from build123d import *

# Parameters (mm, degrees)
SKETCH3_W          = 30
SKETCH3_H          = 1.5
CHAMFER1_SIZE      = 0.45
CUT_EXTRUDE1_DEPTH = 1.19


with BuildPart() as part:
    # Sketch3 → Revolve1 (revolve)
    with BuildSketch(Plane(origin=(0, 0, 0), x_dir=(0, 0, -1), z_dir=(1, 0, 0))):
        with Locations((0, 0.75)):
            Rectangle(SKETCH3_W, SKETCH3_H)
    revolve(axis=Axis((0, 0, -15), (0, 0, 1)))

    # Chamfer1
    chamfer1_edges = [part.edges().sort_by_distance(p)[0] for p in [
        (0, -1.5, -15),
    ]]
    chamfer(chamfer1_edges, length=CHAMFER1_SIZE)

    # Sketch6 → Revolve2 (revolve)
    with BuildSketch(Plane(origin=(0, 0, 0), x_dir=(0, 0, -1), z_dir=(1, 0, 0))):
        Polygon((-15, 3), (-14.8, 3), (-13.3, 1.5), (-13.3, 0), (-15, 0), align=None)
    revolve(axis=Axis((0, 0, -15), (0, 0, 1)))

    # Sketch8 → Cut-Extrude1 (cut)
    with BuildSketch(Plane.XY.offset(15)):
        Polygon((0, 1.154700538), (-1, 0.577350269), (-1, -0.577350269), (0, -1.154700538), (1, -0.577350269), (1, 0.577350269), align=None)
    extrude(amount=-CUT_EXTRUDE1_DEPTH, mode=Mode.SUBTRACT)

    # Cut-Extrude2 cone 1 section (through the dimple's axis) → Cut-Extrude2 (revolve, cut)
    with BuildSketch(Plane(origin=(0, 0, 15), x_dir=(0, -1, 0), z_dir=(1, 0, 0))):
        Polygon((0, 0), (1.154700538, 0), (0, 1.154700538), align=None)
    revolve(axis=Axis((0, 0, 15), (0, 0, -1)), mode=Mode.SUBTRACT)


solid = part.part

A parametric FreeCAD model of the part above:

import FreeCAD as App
import Part
import Sketcher
Q = App.Units.Quantity


def edges_at(feature, points):
    """Names of the edges that pass closest to the given points."""
    edges = feature.Shape.Edges
    near = lambda p: min(range(len(edges)), key=lambda i: edges[i].distToShape(Part.Vertex(*p))[0])
    return sorted({f"Edge{near(p) + 1}" for p in points})

doc = App.newDocument("Part")
body = doc.addObject("PartDesign::Body", "Body")

# Sketch on YZ plane
sketch1 = body.newObject("Sketcher::SketchObject", "Sketch")
sketch1.AttachmentSupport = (doc.getObject("YZ_Plane"), [""])
sketch1.MapMode = "FlatFace"
sketch1.addGeometry([
    Part.LineSegment(App.Vector(1.5, 15, 0), App.Vector(0, 15, 0)),
    Part.LineSegment(App.Vector(0, 15, 0), App.Vector(0, -15, 0)),
    Part.LineSegment(App.Vector(0, -15, 0), App.Vector(1.5, -15, 0)),
    Part.LineSegment(App.Vector(1.5, -15, 0), App.Vector(1.5, 15, 0)),
], False)
sketch1.addConstraint([
    Sketcher.Constraint("Coincident", 0, 2, 1, 1),
    Sketcher.Constraint("Coincident", 1, 2, 2, 1),
    Sketcher.Constraint("Coincident", 2, 2, 3, 1),
    Sketcher.Constraint("Coincident", 3, 2, 0, 1),
    Sketcher.Constraint("Horizontal", 0),
    Sketcher.Constraint("Vertical", 1),
    Sketcher.Constraint("Horizontal", 2),
    Sketcher.Constraint("Vertical", 3),
    Sketcher.Constraint("Symmetric", 0, 2, 1, 2, -1, 1),
    Sketcher.Constraint("DistanceY", 1, 2, 1, 1, 30.0),
    Sketcher.Constraint("DistanceX", 0, 2, 0, 1, 1.5),
])
revolution = body.newObject("PartDesign::Revolution", "Revolution")
revolution.Profile = sketch1
revolution.ReferenceAxis = (sketch1, ["V_Axis"])
revolution.Angle = 360
doc.recompute()

chamfer = body.newObject("PartDesign::Chamfer", "Chamfer")
chamfer.Base = (revolution, edges_at(revolution, [(0, -1.5, -15)]))
chamfer.Size = 0.45

# Sketch on YZ plane
sketch2 = body.newObject("Sketcher::SketchObject", "Sketch001")
sketch2.AttachmentSupport = (doc.getObject("YZ_Plane"), [""])
sketch2.MapMode = "FlatFace"
sketch2.addGeometry([
    Part.LineSegment(App.Vector(3, 14.8, 0), App.Vector(3, 15, 0)),  # 0
    Part.LineSegment(App.Vector(3, 15, 0), App.Vector(0, 15, 0)),  # 1
    Part.LineSegment(App.Vector(0, 15, 0), App.Vector(0, 13.3, 0)),  # 2
    Part.LineSegment(App.Vector(0, 13.3, 0), App.Vector(1.5, 13.3, 0)),  # 3
    Part.LineSegment(App.Vector(1.5, 13.3, 0), App.Vector(3, 14.8, 0)),  # 4
], False)
sketch2.addConstraint([
    Sketcher.Constraint("Coincident", 0, 2, 1, 1),
    Sketcher.Constraint("Coincident", 1, 2, 2, 1),
    Sketcher.Constraint("Coincident", 2, 2, 3, 1),
    Sketcher.Constraint("Coincident", 3, 2, 4, 1),
    Sketcher.Constraint("Coincident", 4, 2, 0, 1),
    Sketcher.Constraint("Vertical", 0),
    Sketcher.Constraint("Horizontal", 1),
    Sketcher.Constraint("Vertical", 2),
    Sketcher.Constraint("Horizontal", 3),
    Sketcher.Constraint("PointOnObject", 1, 2, -2),
    Sketcher.Constraint("DistanceX", 1, 2, 1, 1, 3.0),
    Sketcher.Constraint("Angle", 4, Q("45 deg")),
    Sketcher.Constraint("DistanceX", 3, 1, 3, 2, 1.5),
    Sketcher.Constraint("DistanceY", 0, 1, 0, 2, 0.2),
    Sketcher.Constraint("DistanceY", -1, 1, 0, 2, 15.0),
])
revolution2 = body.newObject("PartDesign::Revolution", "Revolution001")
revolution2.Profile = sketch2
revolution2.ReferenceAxis = (sketch2, ["V_Axis"])
revolution2.Angle = 360

# Sketch on XY plane
sketch3 = body.newObject("Sketcher::SketchObject", "Sketch002")
sketch3.AttachmentSupport = (doc.getObject("XY_Plane"), [""])
sketch3.MapMode = "FlatFace"
sketch3.AttachmentOffset = App.Placement(App.Vector(0, 0, 15), App.Rotation())
sketch3.addGeometry([
    Part.LineSegment(App.Vector(0, 1.2, 0), App.Vector(-1, 0.6, 0)),  # 0
    Part.LineSegment(App.Vector(-1, 0.6, 0), App.Vector(-1, -0.6, 0)),  # 1
    Part.LineSegment(App.Vector(-1, -0.6, 0), App.Vector(0, -1.2, 0)),  # 2
    Part.LineSegment(App.Vector(0, -1.2, 0), App.Vector(1, -0.6, 0)),  # 3
    Part.LineSegment(App.Vector(1, -0.6, 0), App.Vector(1, 0.6, 0)),  # 4
    Part.LineSegment(App.Vector(1, 0.6, 0), App.Vector(0, 1.2, 0)),  # 5
], False)
sketch3.addConstraint([
    Sketcher.Constraint("Coincident", 0, 2, 1, 1),
    Sketcher.Constraint("Coincident", 1, 2, 2, 1),
    Sketcher.Constraint("Coincident", 2, 2, 3, 1),
    Sketcher.Constraint("Coincident", 3, 2, 4, 1),
    Sketcher.Constraint("Coincident", 4, 2, 5, 1),
    Sketcher.Constraint("Coincident", 5, 2, 0, 1),
    Sketcher.Constraint("Vertical", 1),
    Sketcher.Constraint("Vertical", 4),
    Sketcher.Constraint("Symmetric", 0, 2, 3, 2, -1, 1),
    Sketcher.Constraint("Symmetric", 2, 2, 5, 2, -1, 1),
    Sketcher.Constraint("PointOnObject", 2, 2, -2),
    Sketcher.Constraint("Parallel", 2, 5),
    Sketcher.Constraint("Horizontal", 1, 2, 3, 2),
    Sketcher.Constraint("Angle", 0, Q("-150 deg")),
    Sketcher.Constraint("DistanceX", 0, 2, -1, 1, 1.0),
    Sketcher.Constraint("DistanceY", 1, 2, 1, 1, 1.154701),
])
pocket1 = body.newObject("PartDesign::Pocket", "Pocket")
pocket1.Profile = sketch3
pocket1.Length = 1.19

# Sketch on YZ plane
sketch4 = body.newObject("Sketcher::SketchObject", "Sketch003")
sketch4.AttachmentSupport = (doc.getObject("YZ_Plane"), [""])
sketch4.MapMode = "FlatFace"
sketch4.addGeometry([
    Part.LineSegment(App.Vector(0, 15, 0), App.Vector(-1.2, 15, 0)),
    Part.LineSegment(App.Vector(-1.2, 15, 0), App.Vector(0, 13.8, 0)),
    Part.LineSegment(App.Vector(0, 13.8, 0), App.Vector(0, 15, 0)),
], False)
sketch4.addConstraint([
    Sketcher.Constraint("Coincident", 0, 2, 1, 1),
    Sketcher.Constraint("Coincident", 1, 2, 2, 1),
    Sketcher.Constraint("Coincident", 2, 2, 0, 1),
    Sketcher.Constraint("Horizontal", 0),
    Sketcher.Constraint("Vertical", 2),
    Sketcher.Constraint("PointOnObject", 1, 2, -2),
    Sketcher.Constraint("Equal", 0, 2),
    Sketcher.Constraint("DistanceY", -1, 1, 0, 2, 15.0),
    Sketcher.Constraint("DistanceX", 0, 2, 0, 1, 1.154701),
])
groove = body.newObject("PartDesign::Groove", "Groove")
groove.Profile = sketch4
groove.ReferenceAxis = (sketch4, ["V_Axis"])
groove.Angle = 360

doc.recompute()
